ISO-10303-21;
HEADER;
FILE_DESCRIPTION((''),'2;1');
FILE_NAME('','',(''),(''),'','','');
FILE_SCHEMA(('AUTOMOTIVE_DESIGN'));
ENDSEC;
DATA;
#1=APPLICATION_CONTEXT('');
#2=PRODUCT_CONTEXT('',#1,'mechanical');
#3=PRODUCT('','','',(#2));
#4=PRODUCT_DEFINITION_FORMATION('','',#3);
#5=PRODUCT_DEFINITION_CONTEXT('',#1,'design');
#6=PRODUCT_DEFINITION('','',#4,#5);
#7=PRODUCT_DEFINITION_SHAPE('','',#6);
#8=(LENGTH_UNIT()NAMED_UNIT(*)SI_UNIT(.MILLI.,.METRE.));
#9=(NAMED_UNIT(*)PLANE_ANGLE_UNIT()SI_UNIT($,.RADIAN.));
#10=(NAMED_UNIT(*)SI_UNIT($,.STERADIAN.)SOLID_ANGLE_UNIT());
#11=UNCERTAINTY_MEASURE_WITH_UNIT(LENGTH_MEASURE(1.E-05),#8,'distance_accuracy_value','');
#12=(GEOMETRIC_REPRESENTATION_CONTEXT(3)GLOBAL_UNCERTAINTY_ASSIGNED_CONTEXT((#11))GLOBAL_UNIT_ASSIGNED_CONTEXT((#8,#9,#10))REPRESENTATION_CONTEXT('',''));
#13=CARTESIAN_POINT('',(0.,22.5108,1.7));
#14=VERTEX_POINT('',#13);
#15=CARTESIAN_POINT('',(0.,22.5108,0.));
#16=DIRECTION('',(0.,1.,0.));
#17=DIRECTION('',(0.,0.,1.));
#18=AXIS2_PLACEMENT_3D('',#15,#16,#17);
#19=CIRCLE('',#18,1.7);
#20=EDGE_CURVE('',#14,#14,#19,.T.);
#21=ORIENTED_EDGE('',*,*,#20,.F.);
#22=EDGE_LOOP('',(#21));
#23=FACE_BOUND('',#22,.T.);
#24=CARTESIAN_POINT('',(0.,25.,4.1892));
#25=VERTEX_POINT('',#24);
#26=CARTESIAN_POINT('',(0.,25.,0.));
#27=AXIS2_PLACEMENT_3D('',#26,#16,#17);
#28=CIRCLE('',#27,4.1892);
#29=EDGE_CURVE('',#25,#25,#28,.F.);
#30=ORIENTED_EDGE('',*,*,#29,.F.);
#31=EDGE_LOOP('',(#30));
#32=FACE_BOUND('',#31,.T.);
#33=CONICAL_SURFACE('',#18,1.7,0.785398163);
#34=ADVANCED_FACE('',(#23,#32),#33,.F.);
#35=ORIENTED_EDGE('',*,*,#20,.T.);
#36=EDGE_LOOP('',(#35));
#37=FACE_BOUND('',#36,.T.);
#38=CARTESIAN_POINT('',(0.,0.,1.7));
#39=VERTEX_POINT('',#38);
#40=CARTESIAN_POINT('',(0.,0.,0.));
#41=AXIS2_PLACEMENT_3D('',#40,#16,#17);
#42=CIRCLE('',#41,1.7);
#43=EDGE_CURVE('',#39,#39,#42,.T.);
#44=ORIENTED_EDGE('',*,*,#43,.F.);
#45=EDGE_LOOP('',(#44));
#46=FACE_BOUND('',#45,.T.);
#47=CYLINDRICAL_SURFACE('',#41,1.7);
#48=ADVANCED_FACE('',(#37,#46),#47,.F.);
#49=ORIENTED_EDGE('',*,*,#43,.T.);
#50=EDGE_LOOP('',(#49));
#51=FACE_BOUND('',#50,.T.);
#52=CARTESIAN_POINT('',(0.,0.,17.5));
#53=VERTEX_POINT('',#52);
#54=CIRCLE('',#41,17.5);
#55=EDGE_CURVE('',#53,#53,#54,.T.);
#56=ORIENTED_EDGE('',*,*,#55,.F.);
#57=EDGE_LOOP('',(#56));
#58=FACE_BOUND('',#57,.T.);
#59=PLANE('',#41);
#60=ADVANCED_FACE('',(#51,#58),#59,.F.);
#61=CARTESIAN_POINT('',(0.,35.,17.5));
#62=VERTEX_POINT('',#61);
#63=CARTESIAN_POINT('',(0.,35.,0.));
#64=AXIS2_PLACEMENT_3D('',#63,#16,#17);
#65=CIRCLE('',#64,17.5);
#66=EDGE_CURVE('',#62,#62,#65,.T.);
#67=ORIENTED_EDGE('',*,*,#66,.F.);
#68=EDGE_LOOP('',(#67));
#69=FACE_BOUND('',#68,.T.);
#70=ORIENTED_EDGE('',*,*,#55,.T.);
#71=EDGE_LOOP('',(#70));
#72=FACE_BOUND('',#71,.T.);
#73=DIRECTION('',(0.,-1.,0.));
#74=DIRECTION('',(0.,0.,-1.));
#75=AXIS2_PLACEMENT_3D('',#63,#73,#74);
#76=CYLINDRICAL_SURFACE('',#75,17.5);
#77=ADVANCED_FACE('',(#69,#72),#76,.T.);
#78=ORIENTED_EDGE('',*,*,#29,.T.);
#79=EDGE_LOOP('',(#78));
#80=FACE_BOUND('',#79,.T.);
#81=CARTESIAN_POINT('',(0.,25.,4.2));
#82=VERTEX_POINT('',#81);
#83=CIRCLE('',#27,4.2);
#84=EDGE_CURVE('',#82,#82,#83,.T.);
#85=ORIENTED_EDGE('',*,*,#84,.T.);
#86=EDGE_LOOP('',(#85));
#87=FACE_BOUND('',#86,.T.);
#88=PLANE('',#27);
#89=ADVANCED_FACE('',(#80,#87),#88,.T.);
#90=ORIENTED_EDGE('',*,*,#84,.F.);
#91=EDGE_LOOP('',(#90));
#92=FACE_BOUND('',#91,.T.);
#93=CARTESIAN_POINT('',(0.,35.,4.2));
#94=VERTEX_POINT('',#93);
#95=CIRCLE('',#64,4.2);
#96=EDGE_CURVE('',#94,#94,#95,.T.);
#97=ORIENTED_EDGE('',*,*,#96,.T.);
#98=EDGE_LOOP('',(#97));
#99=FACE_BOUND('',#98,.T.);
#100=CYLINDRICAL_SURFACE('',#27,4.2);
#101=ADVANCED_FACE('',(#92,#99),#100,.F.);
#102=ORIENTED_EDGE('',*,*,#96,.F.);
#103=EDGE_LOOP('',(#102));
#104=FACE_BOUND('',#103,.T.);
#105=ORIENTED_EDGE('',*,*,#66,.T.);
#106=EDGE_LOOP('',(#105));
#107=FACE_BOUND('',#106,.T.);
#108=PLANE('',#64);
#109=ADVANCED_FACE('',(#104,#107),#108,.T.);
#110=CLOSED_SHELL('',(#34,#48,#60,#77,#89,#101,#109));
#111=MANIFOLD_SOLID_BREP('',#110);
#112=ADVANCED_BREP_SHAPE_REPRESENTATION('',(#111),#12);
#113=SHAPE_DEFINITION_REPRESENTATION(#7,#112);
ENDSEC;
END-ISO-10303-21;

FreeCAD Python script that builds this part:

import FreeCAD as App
import Part
import Sketcher
from FreeCAD import Vector


def edges_at(feature, points):
    """Names of the edges that pass closest to the given points."""
    edges = feature.Shape.Edges
    near = lambda p: min(range(len(edges)), key=lambda i: edges[i].distToShape(Part.Vertex(*p))[0])
    return sorted({f"Edge{near(p) + 1}" for p in points})

doc = App.newDocument("Part")
body = doc.addObject("PartDesign::Body", "Body")

sketch1 = body.newObject("Sketcher::SketchObject", "Sketch")
sketch1.AttachmentSupport = (doc.getObject("XZ_Plane"), [""])
sketch1.MapMode = "FlatFace"
sketch1.addGeometry(Part.Circle(Vector(0, 0, 0), Vector(0, 0, 1), 17.5), False)
sketch1.addConstraint([
    Sketcher.Constraint("Coincident", 0, 3, -1, 1),
    Sketcher.Constraint("Diameter", 0, 35.0),
])
pad1 = body.newObject("PartDesign::Pad", "Pad")
pad1.Profile = sketch1
pad1.Length = 35
pad1.Reversed = True

sketch2 = body.newObject("Sketcher::SketchObject", "Sketch001")
sketch2.AttachmentSupport = (doc.getObject("XZ_Plane"), [""])
sketch2.MapMode = "FlatFace"
sketch2.AttachmentOffset = App.Placement(Vector(0, 0, -35), App.Rotation())
sketch2.addGeometry(Part.Circle(Vector(0, 0, 0), Vector(0, 0, 1), 4.2), False)
sketch2.addConstraint([
    Sketcher.Constraint("Coincident", 0, 3, -1, 1),
    Sketcher.Constraint("Diameter", 0, 8.4),
])
pocket1 = body.newObject("PartDesign::Pocket", "Pocket")
pocket1.Profile = sketch2
pocket1.Length = 10
pocket1.Reversed = True

sketch3 = body.newObject("Sketcher::SketchObject", "Sketch002")
sketch3.AttachmentSupport = (doc.getObject("XZ_Plane"), [""])
sketch3.MapMode = "FlatFace"
sketch3.AttachmentOffset = App.Placement(Vector(0, 0, -25), App.Rotation())
sketch3.addGeometry(Part.Circle(Vector(0, 0, 0), Vector(0, 0, 1), 1.7), False)
sketch3.addConstraint([
    Sketcher.Constraint("Coincident", 0, 3, -1, 1),
    Sketcher.Constraint("Diameter", 0, 3.4),
])
pocket2 = body.newObject("PartDesign::Pocket", "Pocket001")
pocket2.Profile = sketch3
pocket2.Type = "ThroughAll"
pocket2.Reversed = True
doc.recompute()

chamfer = body.newObject("PartDesign::Chamfer", "Chamfer")
chamfer.Base = (pocket2, edges_at(pocket2, [(0, 25, -1.7)]))
chamfer.Size = 2.4892

doc.recompute()
